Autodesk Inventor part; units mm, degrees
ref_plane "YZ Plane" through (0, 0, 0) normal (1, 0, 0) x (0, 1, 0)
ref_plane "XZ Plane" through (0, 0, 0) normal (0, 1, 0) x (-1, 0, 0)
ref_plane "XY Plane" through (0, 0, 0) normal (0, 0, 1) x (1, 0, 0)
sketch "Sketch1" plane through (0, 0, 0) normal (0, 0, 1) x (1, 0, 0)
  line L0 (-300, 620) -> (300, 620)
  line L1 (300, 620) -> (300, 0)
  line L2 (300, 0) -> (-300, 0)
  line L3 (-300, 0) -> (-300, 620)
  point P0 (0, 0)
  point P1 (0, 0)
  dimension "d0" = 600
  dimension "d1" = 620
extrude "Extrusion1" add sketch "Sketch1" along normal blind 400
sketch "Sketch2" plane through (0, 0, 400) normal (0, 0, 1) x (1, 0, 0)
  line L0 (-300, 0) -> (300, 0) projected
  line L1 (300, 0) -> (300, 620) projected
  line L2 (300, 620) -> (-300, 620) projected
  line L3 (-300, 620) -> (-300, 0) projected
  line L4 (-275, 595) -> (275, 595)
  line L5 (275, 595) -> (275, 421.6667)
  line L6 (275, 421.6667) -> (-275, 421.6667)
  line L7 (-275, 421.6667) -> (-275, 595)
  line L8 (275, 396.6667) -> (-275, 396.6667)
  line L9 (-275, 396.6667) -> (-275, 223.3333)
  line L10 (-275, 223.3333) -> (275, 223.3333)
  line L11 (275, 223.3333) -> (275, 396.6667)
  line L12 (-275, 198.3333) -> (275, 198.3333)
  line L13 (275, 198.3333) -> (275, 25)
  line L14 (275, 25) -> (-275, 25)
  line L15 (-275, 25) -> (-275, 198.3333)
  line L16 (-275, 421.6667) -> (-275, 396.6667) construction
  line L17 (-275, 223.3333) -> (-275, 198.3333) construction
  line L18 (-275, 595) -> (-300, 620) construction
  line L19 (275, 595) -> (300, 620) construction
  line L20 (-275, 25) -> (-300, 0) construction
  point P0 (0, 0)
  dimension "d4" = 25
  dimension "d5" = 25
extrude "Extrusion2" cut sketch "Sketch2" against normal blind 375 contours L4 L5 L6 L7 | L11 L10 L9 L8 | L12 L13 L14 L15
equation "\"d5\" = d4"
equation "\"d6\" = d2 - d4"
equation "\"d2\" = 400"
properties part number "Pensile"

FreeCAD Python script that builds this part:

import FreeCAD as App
import Part
import Sketcher

V = App.Vector

doc = App.newDocument("Part")
body = doc.addObject("PartDesign::Body", "Body")

# Sketch on XY plane
sketch1 = body.newObject("Sketcher::SketchObject", "Sketch")
sketch1.AttachmentSupport = (doc.getObject("XY_Plane"), [""])
sketch1.MapMode = "FlatFace"
sketch1.addGeometry([
    Part.LineSegment(V(300, 620, 0), V(-300, 620, 0)),
    Part.LineSegment(V(-300, 620, 0), V(-300, 0, 0)),
    Part.LineSegment(V(-300, 0, 0), V(300, 0, 0)),
    Part.LineSegment(V(300, 0, 0), V(300, 620, 0)),
], False)
sketch1.addConstraint([
    Sketcher.Constraint("Coincident", 0, 2, 1, 1),
    Sketcher.Constraint("Coincident", 1, 2, 2, 1),
    Sketcher.Constraint("Coincident", 2, 2, 3, 1),
    Sketcher.Constraint("Coincident", 3, 2, 0, 1),
    Sketcher.Constraint("Horizontal", 0),
    Sketcher.Constraint("Vertical", 1),
    Sketcher.Constraint("Horizontal", 2),
    Sketcher.Constraint("Vertical", 3),
    Sketcher.Constraint("Symmetric", 1, 2, 2, 2, -1, 1),
    Sketcher.Constraint("DistanceX", 0, 2, 0, 1, 600.0),
    Sketcher.Constraint("DistanceY", 1, 2, 1, 1, 620.0),
])
pad1 = body.newObject("PartDesign::Pad", "Pad")
pad1.Profile = sketch1
pad1.Length = 400

# Sketch on XY plane
sketch2 = body.newObject("Sketcher::SketchObject", "Sketch001")
sketch2.AttachmentSupport = (doc.getObject("XY_Plane"), [""])
sketch2.MapMode = "FlatFace"
sketch2.AttachmentOffset = App.Placement(V(0, 0, 400), App.Rotation())
sketch2.addGeometry([
    Part.LineSegment(V(275, 595, 0), V(-275, 595, 0)),  # 0
    Part.LineSegment(V(-275, 595, 0), V(-275, 421.6667, 0)),  # 1
    Part.LineSegment(V(-275, 421.6667, 0), V(275, 421.6667, 0)),  # 2
    Part.LineSegment(V(275, 421.6667, 0), V(275, 595, 0)),  # 3
    Part.LineSegment(V(275, 223.3333, 0), V(275, 396.6667, 0)),  # 4
    Part.LineSegment(V(275, 396.6667, 0), V(-275, 396.6667, 0)),  # 5
    Part.LineSegment(V(-275, 396.6667, 0), V(-275, 223.3333, 0)),  # 6
    Part.LineSegment(V(-275, 223.3333, 0), V(275, 223.3333, 0)),  # 7
    Part.LineSegment(V(275, 198.3333, 0), V(-275, 198.3333, 0)),  # 8
    Part.LineSegment(V(-275, 198.3333, 0), V(-275, 25, 0)),  # 9
    Part.LineSegment(V(-275, 25, 0), V(275, 25, 0)),  # 10
    Part.LineSegment(V(275, 25, 0), V(275, 198.3333, 0)),  # 11
], False)
sketch2.addConstraint([
    Sketcher.Constraint("Coincident", 0, 2, 1, 1),
    Sketcher.Constraint("Coincident", 1, 2, 2, 1),
    Sketcher.Constraint("Coincident", 2, 2, 3, 1),
    Sketcher.Constraint("Coincident", 3, 2, 0, 1),
    Sketcher.Constraint("Coincident", 4, 2, 5, 1),
    Sketcher.Constraint("Coincident", 5, 2, 6, 1),
    Sketcher.Constraint("Coincident", 6, 2, 7, 1),
    Sketcher.Constraint("Coincident", 7, 2, 4, 1),
    Sketcher.Constraint("Coincident", 8, 2, 9, 1),
    Sketcher.Constraint("Coincident", 9, 2, 10, 1),
    Sketcher.Constraint("Coincident", 10, 2, 11, 1),
    Sketcher.Constraint("Coincident", 11, 2, 8, 1),
    Sketcher.Constraint("Horizontal", 0),
    Sketcher.Constraint("Vertical", 1),
    Sketcher.Constraint("Horizontal", 2),
    Sketcher.Constraint("Vertical", 3),
    Sketcher.Constraint("Vertical", 4),
    Sketcher.Constraint("Horizontal", 5),
    Sketcher.Constraint("Vertical", 6),
    Sketcher.Constraint("Horizontal", 7),
    Sketcher.Constraint("Horizontal", 8),
    Sketcher.Constraint("Vertical", 9),
    Sketcher.Constraint("Horizontal", 10),
    Sketcher.Constraint("Vertical", 11),
    Sketcher.Constraint("Vertical", 3, 2, 4, 2),
    Sketcher.Constraint("Vertical", 1, 2, 5, 2),
    Sketcher.Constraint("Vertical", 6, 2, 8, 2),
    Sketcher.Constraint("Vertical", 7, 2, 10, 2),
    Sketcher.Constraint("Equal", 3, 4),
    Sketcher.Constraint("Equal", 6, 9),
    Sketcher.Constraint("DistanceY", -1, 1, 9, 2, 25.0),
    Sketcher.Constraint("DistanceY", 4, 2, 2, 2, 25.0),
    Sketcher.Constraint("DistanceY", 8, 2, 6, 2, 25.0),
    Sketcher.Constraint("DistanceX", 0, 2, 0, 1, 550.0),
    Sketcher.Constraint("DistanceX", 0, 2, -1, 1, 275.0),
    Sketcher.Constraint("DistanceY", -1, 1, 0, 2, 595.0),
])
pocket1 = body.newObject("PartDesign::Pocket", "Pocket")
pocket1.Profile = sketch2
pocket1.Length = 375

doc.recompute()
